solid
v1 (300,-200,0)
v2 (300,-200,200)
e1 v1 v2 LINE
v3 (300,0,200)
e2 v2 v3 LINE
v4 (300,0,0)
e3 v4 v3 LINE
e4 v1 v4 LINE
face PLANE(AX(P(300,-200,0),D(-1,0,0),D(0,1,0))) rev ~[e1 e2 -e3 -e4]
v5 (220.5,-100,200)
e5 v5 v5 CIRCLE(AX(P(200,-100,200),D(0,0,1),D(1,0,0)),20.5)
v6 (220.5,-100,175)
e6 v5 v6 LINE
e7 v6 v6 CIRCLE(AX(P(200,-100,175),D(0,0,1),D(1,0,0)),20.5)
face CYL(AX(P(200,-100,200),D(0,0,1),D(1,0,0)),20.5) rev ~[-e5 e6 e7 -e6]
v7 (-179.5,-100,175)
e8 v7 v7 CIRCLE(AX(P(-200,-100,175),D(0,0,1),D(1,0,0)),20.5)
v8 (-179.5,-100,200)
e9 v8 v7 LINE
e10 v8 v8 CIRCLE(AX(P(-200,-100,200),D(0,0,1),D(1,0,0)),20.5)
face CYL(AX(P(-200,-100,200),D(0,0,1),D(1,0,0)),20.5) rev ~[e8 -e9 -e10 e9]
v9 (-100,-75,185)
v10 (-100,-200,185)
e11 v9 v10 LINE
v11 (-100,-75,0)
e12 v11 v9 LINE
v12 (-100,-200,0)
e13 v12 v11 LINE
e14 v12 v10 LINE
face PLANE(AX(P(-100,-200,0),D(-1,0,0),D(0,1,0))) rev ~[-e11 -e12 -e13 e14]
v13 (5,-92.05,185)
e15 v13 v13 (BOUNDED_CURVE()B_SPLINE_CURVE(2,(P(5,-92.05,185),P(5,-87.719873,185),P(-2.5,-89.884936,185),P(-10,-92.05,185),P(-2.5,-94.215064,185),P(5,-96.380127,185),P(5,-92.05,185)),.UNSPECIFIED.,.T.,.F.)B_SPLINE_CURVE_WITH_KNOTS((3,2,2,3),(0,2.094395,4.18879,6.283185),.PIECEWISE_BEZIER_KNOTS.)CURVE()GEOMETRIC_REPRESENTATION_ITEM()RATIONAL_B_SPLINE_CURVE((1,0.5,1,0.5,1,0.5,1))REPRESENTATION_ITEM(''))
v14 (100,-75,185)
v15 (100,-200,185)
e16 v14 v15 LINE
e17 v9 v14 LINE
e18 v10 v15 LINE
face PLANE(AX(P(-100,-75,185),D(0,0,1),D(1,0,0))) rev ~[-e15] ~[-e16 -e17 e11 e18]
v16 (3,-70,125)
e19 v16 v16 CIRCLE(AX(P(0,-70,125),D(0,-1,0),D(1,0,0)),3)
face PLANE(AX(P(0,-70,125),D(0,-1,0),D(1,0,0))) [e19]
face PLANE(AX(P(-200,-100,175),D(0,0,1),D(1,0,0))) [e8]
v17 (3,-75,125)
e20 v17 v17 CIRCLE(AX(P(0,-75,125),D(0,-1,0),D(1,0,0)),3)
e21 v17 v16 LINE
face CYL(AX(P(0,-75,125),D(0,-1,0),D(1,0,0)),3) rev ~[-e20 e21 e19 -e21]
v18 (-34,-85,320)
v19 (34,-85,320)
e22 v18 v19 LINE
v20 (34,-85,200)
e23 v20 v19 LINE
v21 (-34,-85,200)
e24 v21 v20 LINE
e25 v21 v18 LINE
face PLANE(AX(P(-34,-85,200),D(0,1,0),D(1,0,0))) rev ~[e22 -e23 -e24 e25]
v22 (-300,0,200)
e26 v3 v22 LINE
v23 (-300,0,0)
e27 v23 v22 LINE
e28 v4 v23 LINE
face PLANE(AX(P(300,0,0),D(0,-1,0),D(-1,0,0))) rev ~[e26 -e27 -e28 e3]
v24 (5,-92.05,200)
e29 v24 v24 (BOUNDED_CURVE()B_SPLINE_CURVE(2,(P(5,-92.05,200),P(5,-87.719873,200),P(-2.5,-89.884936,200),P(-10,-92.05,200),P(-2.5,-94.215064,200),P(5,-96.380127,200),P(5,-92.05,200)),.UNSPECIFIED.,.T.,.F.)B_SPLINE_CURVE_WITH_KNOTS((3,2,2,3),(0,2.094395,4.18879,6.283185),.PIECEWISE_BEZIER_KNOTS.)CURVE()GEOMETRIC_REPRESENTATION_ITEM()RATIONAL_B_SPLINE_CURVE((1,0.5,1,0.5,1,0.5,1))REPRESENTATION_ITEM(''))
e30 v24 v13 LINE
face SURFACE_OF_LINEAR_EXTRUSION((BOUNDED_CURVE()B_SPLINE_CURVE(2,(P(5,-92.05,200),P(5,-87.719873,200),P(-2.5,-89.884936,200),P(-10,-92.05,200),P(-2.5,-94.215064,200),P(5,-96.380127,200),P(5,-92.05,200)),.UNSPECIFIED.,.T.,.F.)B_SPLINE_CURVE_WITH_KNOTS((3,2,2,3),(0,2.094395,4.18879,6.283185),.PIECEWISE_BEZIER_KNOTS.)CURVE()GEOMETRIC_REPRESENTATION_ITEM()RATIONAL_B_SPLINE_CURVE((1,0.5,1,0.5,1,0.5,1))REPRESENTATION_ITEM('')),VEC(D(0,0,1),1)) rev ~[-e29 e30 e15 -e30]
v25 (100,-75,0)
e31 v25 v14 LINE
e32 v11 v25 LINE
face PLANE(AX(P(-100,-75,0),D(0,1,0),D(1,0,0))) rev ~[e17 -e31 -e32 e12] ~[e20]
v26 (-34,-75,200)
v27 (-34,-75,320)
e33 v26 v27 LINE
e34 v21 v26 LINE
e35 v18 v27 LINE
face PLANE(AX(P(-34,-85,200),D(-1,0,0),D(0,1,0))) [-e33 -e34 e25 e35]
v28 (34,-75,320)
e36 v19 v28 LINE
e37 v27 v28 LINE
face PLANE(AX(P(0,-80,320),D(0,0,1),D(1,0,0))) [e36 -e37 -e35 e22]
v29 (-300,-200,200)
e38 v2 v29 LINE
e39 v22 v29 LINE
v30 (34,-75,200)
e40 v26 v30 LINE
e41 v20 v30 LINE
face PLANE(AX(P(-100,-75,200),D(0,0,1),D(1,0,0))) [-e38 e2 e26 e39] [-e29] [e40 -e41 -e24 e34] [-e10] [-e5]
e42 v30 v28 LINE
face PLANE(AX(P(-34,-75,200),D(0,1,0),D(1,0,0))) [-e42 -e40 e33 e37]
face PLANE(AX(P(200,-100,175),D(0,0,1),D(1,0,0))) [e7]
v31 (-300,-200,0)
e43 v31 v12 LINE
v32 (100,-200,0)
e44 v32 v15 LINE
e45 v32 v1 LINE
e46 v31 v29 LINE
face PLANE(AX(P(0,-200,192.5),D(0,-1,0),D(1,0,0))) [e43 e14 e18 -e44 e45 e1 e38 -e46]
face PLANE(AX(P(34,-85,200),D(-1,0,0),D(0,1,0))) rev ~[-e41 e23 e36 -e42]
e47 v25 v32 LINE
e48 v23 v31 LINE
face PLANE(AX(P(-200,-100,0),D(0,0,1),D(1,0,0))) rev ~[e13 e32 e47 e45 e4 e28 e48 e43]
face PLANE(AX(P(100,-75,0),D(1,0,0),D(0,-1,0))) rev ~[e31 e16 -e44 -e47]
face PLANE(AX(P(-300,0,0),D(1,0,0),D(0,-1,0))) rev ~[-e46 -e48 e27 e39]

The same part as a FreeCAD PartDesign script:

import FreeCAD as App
import Part
import Sketcher

V = App.Vector
Q = App.Units.Quantity

doc = App.newDocument("Part")
body = doc.addObject("PartDesign::Body", "Body")

# Sketch on XY plane
sketch1 = doc.addObject("Sketcher::SketchObject", "Sketch")
body.addObject(sketch1)
sketch1.AttachmentSupport = (doc.XY_Plane, [""])
sketch1.MapMode = "FlatFace"
sketch1.addGeometry([
    Part.LineSegment(V(-300, 0, 0), V(-300, -200, 0)),  # 0
    Part.LineSegment(V(-300, -200, 0), V(-100, -200, 0)),  # 1
    Part.LineSegment(V(-100, -200, 0), V(-100, -75, 0)),  # 2
    Part.LineSegment(V(-100, -75, 0), V(100, -75, 0)),  # 3
    Part.LineSegment(V(100, -75, 0), V(100, -200, 0)),  # 4
    Part.LineSegment(V(100, -200, 0), V(300, -200, 0)),  # 5
    Part.LineSegment(V(300, -200, 0), V(300, 0, 0)),  # 6
    Part.LineSegment(V(300, 0, 0), V(-300, 0, 0)),  # 7
], False)
sketch1.addConstraint([
    Sketcher.Constraint("Coincident", 0, 2, 1, 1),
    Sketcher.Constraint("Coincident", 1, 2, 2, 1),
    Sketcher.Constraint("Coincident", 2, 2, 3, 1),
    Sketcher.Constraint("Coincident", 3, 2, 4, 1),
    Sketcher.Constraint("Coincident", 4, 2, 5, 1),
    Sketcher.Constraint("Coincident", 5, 2, 6, 1),
    Sketcher.Constraint("Coincident", 6, 2, 7, 1),
    Sketcher.Constraint("Coincident", 7, 2, 0, 1),
    Sketcher.Constraint("Vertical", 0),
    Sketcher.Constraint("Horizontal", 1),
    Sketcher.Constraint("Vertical", 2),
    Sketcher.Constraint("Horizontal", 3),
    Sketcher.Constraint("Vertical", 4),
    Sketcher.Constraint("Horizontal", 5),
    Sketcher.Constraint("Vertical", 6),
    Sketcher.Constraint("Horizontal", 7),
    Sketcher.Constraint("Symmetric", 6, 2, 7, 2, -1, 1),
    Sketcher.Constraint("Symmetric", 1, 2, 4, 2, -2),
    Sketcher.Constraint("Equal", 1, 3),
    Sketcher.Constraint("Equal", 5, 0),
    Sketcher.Constraint("DistanceX", 1, 1, 1, 2, Q("200 mm")),
    Sketcher.Constraint("DistanceY", 2, 1, 2, 2, Q("125 mm")),
])
pad1 = doc.addObject("PartDesign::Pad", "Pad")
body.addObject(pad1)
pad1.Profile = sketch1
pad1.Length = 200

# Sketch on XZ plane
sketch2 = doc.addObject("Sketcher::SketchObject", "Sketch001")
body.addObject(sketch2)
sketch2.AttachmentSupport = (doc.XZ_Plane, [""])
sketch2.MapMode = "FlatFace"
sketch2.AttachmentOffset = App.Placement(V(0, 0, 75), App.Rotation())
sketch2.addGeometry([
    Part.LineSegment(V(-100, 200, 0), V(-100, 185, 0)),
    Part.LineSegment(V(-100, 185, 0), V(100, 185, 0)),
    Part.LineSegment(V(100, 185, 0), V(100, 200, 0)),
    Part.LineSegment(V(100, 200, 0), V(-100, 200, 0)),
], False)
sketch2.addConstraint([
    Sketcher.Constraint("Coincident", 0, 2, 1, 1),
    Sketcher.Constraint("Coincident", 1, 2, 2, 1),
    Sketcher.Constraint("Coincident", 2, 2, 3, 1),
    Sketcher.Constraint("Coincident", 3, 2, 0, 1),
    Sketcher.Constraint("Vertical", 0),
    Sketcher.Constraint("Horizontal", 1),
    Sketcher.Constraint("Vertical", 2),
    Sketcher.Constraint("Horizontal", 3),
    Sketcher.Constraint("DistanceX", 1, 1, 1, 2, Q("200 mm")),
    Sketcher.Constraint("DistanceY", 0, 2, 0, 1, Q("15 mm")),
    Sketcher.Constraint("DistanceX", 0, 2, -1, 1, Q("100 mm")),
    Sketcher.Constraint("DistanceY", -1, 1, 0, 2, Q("185 mm")),
])
pad2 = doc.addObject("PartDesign::Pad", "Pad001")
body.addObject(pad2)
pad2.Profile = sketch2
pad2.Length = 125

# Sketch on XY plane
sketch3 = doc.addObject("Sketcher::SketchObject", "Sketch002")
body.addObject(sketch3)
sketch3.AttachmentSupport = (doc.XY_Plane, [""])
sketch3.MapMode = "FlatFace"
sketch3.AttachmentOffset = App.Placement(V(0, 0, 200), App.Rotation())
sketch3.addGeometry([
    Part.LineSegment(V(-34, -75, 0), V(-34, -85, 0)),
    Part.LineSegment(V(-34, -85, 0), V(34, -85, 0)),
    Part.LineSegment(V(34, -85, 0), V(34, -75, 0)),
    Part.LineSegment(V(34, -75, 0), V(-34, -75, 0)),
], False)
sketch3.addConstraint([
    Sketcher.Constraint("Coincident", 0, 2, 1, 1),
    Sketcher.Constraint("Coincident", 1, 2, 2, 1),
    Sketcher.Constraint("Coincident", 2, 2, 3, 1),
    Sketcher.Constraint("Coincident", 3, 2, 0, 1),
    Sketcher.Constraint("Vertical", 0),
    Sketcher.Constraint("Horizontal", 1),
    Sketcher.Constraint("Vertical", 2),
    Sketcher.Constraint("Horizontal", 3),
    Sketcher.Constraint("DistanceX", 1, 1, 1, 2, Q("68 mm")),
    Sketcher.Constraint("DistanceY", 0, 2, 0, 1, Q("10 mm")),
    Sketcher.Constraint("DistanceX", 0, 2, -1, 1, Q("34 mm")),
    Sketcher.Constraint("DistanceY", 0, 2, -1, 1, Q("85 mm")),
])
pad3 = doc.addObject("PartDesign::Pad", "Pad002")
body.addObject(pad3)
pad3.Profile = sketch3
pad3.Length = 120

# Sketch on XY plane
sketch4 = doc.addObject("Sketcher::SketchObject", "Sketch003")
body.addObject(sketch4)
sketch4.AttachmentSupport = (doc.XY_Plane, [""])
sketch4.MapMode = "FlatFace"
sketch4.AttachmentOffset = App.Placement(V(0, 0, 200), App.Rotation())
sketch4.addGeometry(Part.BSplineCurve([V(5, -92.05, 0), V(5, -87.719873, 0), V(-2.5, -89.884936, 0), V(-10, -92.05, 0), V(-2.5, -94.215064, 0), V(5, -96.380127, 0), V(5, -92.05, 0)], [3, 2, 2, 3], [0, 2.094395, 4.18879, 6.283185], False, 2, [1, 0.5, 1, 0.5, 1, 0.5, 1], False), False)
sketch4.addConstraint(Sketcher.Constraint("Block", 0))
pocket1 = doc.addObject("PartDesign::Pocket", "Pocket")
body.addObject(pocket1)
pocket1.Profile = sketch4
pocket1.Type = "ThroughAll"

# Sketch on XZ plane
sketch5 = doc.addObject("Sketcher::SketchObject", "Sketch004")
body.addObject(sketch5)
sketch5.AttachmentSupport = (doc.XZ_Plane, [""])
sketch5.MapMode = "FlatFace"
sketch5.AttachmentOffset = App.Placement(V(0, 0, 75), App.Rotation())
sketch5.addGeometry(Part.Circle(V(0, 125, 0), V(0, 0, 1), 3), False)
sketch5.addConstraint([
    Sketcher.Constraint("PointOnObject", 0, 3, -2),
    Sketcher.Constraint("Diameter", 0, Q("6 mm")),
    Sketcher.Constraint("DistanceY", -1, 1, 0, 3, Q("125 mm")),
])
pocket2 = doc.addObject("PartDesign::Pocket", "Pocket001")
body.addObject(pocket2)
pocket2.Profile = sketch5
pocket2.Length = 5

# Sketch on XY plane
sketch6 = doc.addObject("Sketcher::SketchObject", "Sketch005")
body.addObject(sketch6)
sketch6.AttachmentSupport = (doc.XY_Plane, [""])
sketch6.MapMode = "FlatFace"
sketch6.AttachmentOffset = App.Placement(V(0, 0, 200), App.Rotation())
sketch6.addGeometry([
    Part.Circle(V(-200, -100, 0), V(0, 0, 1), 20),
    Part.Circle(V(200, -100, 0), V(0, 0, 1), 20),
], False)
sketch6.addConstraint([
    Sketcher.Constraint("Equal", 0, 1),
    Sketcher.Constraint("Symmetric", 0, 3, 1, 3, -2),
    Sketcher.Constraint("Diameter", 0, Q("41 mm")),
    Sketcher.Constraint("DistanceX", 0, 3, -1, 1, Q("200 mm")),
    Sketcher.Constraint("DistanceY", 0, 3, -1, 1, Q("100 mm")),
])
pocket3 = doc.addObject("PartDesign::Pocket", "Pocket002")
body.addObject(pocket3)
pocket3.Profile = sketch6
pocket3.Length = 25

doc.recompute()
